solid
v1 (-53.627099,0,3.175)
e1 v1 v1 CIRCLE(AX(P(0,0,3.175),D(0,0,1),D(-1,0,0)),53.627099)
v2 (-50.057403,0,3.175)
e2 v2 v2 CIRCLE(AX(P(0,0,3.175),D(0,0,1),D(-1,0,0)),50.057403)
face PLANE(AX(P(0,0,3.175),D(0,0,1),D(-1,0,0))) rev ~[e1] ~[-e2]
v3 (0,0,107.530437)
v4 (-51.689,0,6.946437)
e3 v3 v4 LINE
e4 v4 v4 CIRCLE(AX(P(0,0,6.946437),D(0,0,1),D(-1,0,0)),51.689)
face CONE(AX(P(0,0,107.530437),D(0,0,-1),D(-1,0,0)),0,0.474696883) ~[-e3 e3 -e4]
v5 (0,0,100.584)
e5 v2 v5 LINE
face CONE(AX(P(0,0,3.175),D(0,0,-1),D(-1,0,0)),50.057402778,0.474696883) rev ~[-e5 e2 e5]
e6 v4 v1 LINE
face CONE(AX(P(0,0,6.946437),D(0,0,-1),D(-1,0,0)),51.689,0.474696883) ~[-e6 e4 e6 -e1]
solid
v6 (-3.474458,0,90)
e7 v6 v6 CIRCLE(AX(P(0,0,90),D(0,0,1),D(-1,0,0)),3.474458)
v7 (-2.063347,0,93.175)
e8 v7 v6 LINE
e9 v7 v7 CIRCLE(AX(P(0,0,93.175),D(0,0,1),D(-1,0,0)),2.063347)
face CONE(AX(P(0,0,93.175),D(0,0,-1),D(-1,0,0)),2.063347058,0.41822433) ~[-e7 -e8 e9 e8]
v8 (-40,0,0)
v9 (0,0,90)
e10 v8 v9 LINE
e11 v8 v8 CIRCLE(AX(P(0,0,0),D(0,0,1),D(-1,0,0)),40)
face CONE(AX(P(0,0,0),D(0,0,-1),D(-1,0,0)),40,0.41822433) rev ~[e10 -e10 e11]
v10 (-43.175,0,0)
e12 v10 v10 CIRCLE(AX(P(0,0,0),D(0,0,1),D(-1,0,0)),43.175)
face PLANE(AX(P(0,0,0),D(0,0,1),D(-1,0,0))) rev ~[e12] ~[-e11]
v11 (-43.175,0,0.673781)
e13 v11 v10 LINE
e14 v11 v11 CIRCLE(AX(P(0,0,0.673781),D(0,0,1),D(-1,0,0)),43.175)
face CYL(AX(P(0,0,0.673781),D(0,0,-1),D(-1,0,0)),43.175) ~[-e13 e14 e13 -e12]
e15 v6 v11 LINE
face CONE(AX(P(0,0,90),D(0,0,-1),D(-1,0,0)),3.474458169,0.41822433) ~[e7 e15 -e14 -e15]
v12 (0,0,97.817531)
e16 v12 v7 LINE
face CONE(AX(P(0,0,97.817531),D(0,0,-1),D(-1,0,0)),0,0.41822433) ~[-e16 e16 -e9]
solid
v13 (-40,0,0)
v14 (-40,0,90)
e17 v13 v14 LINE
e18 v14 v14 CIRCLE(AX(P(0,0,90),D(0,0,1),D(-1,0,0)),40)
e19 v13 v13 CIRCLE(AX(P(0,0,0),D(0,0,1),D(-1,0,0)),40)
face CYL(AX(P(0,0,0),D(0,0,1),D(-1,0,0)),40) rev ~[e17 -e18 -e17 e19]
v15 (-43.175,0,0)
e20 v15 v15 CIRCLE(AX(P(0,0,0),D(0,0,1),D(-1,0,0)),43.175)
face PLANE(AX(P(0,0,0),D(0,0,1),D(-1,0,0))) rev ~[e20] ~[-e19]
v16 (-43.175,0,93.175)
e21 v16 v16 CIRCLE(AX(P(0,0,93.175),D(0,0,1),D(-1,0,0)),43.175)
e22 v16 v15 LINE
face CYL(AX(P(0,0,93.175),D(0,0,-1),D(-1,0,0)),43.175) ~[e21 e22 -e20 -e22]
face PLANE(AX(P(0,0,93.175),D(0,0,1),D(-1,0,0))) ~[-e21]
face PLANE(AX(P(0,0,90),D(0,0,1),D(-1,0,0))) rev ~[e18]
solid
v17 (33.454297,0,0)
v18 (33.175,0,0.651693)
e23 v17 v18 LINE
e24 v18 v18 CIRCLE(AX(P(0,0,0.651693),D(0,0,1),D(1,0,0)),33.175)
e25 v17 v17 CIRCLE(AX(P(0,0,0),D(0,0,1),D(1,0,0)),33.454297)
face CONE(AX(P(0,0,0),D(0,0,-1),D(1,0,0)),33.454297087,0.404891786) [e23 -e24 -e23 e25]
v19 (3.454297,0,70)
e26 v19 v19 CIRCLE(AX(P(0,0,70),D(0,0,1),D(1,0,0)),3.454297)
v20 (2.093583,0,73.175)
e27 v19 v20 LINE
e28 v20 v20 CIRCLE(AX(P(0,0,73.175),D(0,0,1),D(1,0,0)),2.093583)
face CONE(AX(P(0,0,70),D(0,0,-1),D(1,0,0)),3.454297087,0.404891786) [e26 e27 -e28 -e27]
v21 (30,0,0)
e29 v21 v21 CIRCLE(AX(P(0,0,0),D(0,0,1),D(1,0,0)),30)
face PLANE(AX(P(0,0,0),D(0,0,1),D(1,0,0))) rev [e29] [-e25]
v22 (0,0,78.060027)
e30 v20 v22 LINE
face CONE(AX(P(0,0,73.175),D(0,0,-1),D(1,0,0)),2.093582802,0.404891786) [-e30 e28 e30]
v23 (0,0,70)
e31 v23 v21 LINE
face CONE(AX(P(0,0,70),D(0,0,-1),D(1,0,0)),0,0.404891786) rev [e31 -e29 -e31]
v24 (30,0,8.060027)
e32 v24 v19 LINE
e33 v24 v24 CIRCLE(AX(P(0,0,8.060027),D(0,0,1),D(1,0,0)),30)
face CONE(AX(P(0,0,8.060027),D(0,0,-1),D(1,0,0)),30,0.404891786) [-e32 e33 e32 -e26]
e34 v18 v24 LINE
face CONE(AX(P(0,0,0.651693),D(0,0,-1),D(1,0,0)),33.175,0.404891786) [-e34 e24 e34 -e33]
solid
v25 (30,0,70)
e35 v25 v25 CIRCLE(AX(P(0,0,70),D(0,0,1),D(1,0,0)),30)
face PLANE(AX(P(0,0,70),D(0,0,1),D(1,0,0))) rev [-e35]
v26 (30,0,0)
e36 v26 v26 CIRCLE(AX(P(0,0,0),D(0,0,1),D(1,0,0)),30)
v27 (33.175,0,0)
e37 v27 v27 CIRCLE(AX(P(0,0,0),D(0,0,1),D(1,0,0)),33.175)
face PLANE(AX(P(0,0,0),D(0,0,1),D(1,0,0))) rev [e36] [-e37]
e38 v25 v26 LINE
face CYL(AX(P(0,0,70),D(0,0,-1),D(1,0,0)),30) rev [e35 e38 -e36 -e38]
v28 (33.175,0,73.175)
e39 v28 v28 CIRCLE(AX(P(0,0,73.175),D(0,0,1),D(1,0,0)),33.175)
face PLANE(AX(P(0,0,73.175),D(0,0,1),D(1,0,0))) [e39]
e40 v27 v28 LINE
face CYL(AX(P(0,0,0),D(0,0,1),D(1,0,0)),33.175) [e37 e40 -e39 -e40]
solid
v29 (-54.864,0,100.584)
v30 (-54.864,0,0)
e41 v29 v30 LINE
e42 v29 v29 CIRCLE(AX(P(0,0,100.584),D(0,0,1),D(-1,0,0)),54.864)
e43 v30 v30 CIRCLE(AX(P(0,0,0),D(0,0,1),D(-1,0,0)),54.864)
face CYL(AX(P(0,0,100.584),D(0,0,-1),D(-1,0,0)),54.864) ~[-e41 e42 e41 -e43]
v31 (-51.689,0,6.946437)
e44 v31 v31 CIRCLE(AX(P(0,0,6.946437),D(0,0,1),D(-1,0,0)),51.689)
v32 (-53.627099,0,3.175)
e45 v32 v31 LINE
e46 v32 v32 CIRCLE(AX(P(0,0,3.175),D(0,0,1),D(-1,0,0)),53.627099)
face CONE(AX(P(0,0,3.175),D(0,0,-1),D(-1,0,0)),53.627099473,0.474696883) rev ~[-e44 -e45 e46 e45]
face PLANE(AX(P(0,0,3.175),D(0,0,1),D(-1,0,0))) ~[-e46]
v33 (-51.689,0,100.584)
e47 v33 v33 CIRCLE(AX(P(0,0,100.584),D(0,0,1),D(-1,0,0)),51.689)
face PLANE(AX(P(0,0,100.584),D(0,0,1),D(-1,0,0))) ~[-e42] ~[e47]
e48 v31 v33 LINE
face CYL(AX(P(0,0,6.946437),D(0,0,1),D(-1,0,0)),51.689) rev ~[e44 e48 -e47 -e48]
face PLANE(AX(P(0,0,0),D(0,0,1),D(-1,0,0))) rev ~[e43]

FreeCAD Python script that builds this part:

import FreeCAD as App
import Part
import Sketcher

V = App.Vector

doc = App.newDocument("Part")
body = doc.addObject("PartDesign::Body", "Body")

sketch1 = body.newObject("Sketcher::SketchObject", "Sketch")
sketch1.AttachmentSupport = (doc.getObject("XZ_Plane"), [""])
sketch1.MapMode = "FlatFace"
sketch1.addGeometry(Part.LineSegment(V(0, 0, 0), V(0, 3.2, 0)), False)
sketch1.addGeometry(Part.LineSegment(V(0, 3.2, 0), V(-53.6, 3.2, 0)), False)
sketch1.addGeometry(Part.LineSegment(V(-53.6, 3.2, 0), V(-51.7, 6.9, 0)), False)
sketch1.addGeometry(Part.LineSegment(V(-51.7, 6.9, 0), V(-51.7, 100.6, 0)), False)
sketch1.addGeometry(Part.LineSegment(V(-51.7, 100.6, 0), V(-54.9, 100.6, 0)), False)
sketch1.addGeometry(Part.LineSegment(V(-54.9, 100.6, 0), V(-54.9, 0, 0)), False)
sketch1.addGeometry(Part.LineSegment(V(-54.9, 0, 0), V(0, 0, 0)), False)
sketch1.addConstraint(Sketcher.Constraint("Coincident", 0, 2, 1, 1))
sketch1.addConstraint(Sketcher.Constraint("Coincident", 1, 2, 2, 1))
sketch1.addConstraint(Sketcher.Constraint("Coincident", 2, 2, 3, 1))
sketch1.addConstraint(Sketcher.Constraint("Coincident", 3, 2, 4, 1))
sketch1.addConstraint(Sketcher.Constraint("Coincident", 4, 2, 5, 1))
sketch1.addConstraint(Sketcher.Constraint("Coincident", 5, 2, 6, 1))
sketch1.addConstraint(Sketcher.Constraint("Coincident", 6, 2, 0, 1))
sketch1.addConstraint(Sketcher.Constraint("Vertical", 0))
sketch1.addConstraint(Sketcher.Constraint("Horizontal", 1))
sketch1.addConstraint(Sketcher.Constraint("Vertical", 3))
sketch1.addConstraint(Sketcher.Constraint("Horizontal", 4))
sketch1.addConstraint(Sketcher.Constraint("Vertical", 5))
sketch1.addConstraint(Sketcher.Constraint("Horizontal", 6))
sketch1.addConstraint(Sketcher.Constraint("Coincident", 6, 2, -1, 1))
sketch1.addConstraint(Sketcher.Constraint("Equal", 4, 0))
sketch1.addConstraint(Sketcher.Constraint("DistanceX", 4, 2, 4, 1, 3.175))
sketch1.addConstraint(Sketcher.Constraint("DistanceX", 6, 1, 6, 2, 54.864))
sketch1.addConstraint(Sketcher.Constraint("DistanceY", 5, 2, 5, 1, 100.584))
sketch1.addConstraint(Sketcher.Constraint("DistanceX", 1, 2, 1, 1, 53.627099))
sketch1.addConstraint(Sketcher.Constraint("Distance", 2, 4.240279))
revolution = body.newObject("PartDesign::Revolution", "Revolution")
revolution.Profile = sketch1
revolution.ReferenceAxis = (sketch1, ["V_Axis"])
revolution.Angle = 360
body2 = doc.addObject("PartDesign::Body", "Body001")

sketch2 = body2.newObject("Sketcher::SketchObject", "Sketch001")
sketch2.AttachmentSupport = (doc.getObject("XZ_Plane001"), [""])
sketch2.MapMode = "FlatFace"
sketch2.addGeometry(Part.LineSegment(V(-50.1, 3.2, 0), V(0, 100.6, 0)), False)
sketch2.addGeometry(Part.LineSegment(V(0, 100.6, 0), V(0, 107.5, 0)), False)
sketch2.addGeometry(Part.LineSegment(V(0, 107.5, 0), V(-51.7, 6.9, 0)), False)
sketch2.addGeometry(Part.LineSegment(V(-51.7, 6.9, 0), V(-53.6, 3.2, 0)), False)
sketch2.addGeometry(Part.LineSegment(V(-53.6, 3.2, 0), V(-50.1, 3.2, 0)), False)
sketch2.addConstraint(Sketcher.Constraint("Coincident", 0, 2, 1, 1))
sketch2.addConstraint(Sketcher.Constraint("Coincident", 1, 2, 2, 1))
sketch2.addConstraint(Sketcher.Constraint("Coincident", 2, 2, 3, 1))
sketch2.addConstraint(Sketcher.Constraint("Coincident", 3, 2, 4, 1))
sketch2.addConstraint(Sketcher.Constraint("Coincident", 4, 2, 0, 1))
sketch2.addConstraint(Sketcher.Constraint("Vertical", 1))
sketch2.addConstraint(Sketcher.Constraint("Horizontal", 4))
sketch2.addConstraint(Sketcher.Constraint("PointOnObject", 0, 2, -2))
sketch2.addConstraint(Sketcher.Constraint("Parallel", 0, 2))
sketch2.addConstraint(Sketcher.Constraint("Parallel", 2, 3))
sketch2.addConstraint(Sketcher.Constraint("DistanceY", -1, 1, 0, 2, 100.584))
sketch2.addConstraint(Sketcher.Constraint("DistanceX", 2, 2, -1, 1, 51.689))
sketch2.addConstraint(Sketcher.Constraint("DistanceY", -1, 1, 3, 2, 3.175))
sketch2.addConstraint(Sketcher.Constraint("DistanceY", 2, 2, 1, 2, 100.584))
sketch2.addConstraint(Sketcher.Constraint("DistanceX", 3, 2, -1, 1, 53.627099))
revolution2 = body2.newObject("PartDesign::Revolution", "Revolution001")
revolution2.Profile = sketch2
revolution2.ReferenceAxis = (sketch2, ["V_Axis"])
revolution2.Angle = 360
body3 = doc.addObject("PartDesign::Body", "Body002")

sketch3 = body3.newObject("Sketcher::SketchObject", "Sketch002")
sketch3.AttachmentSupport = (doc.getObject("XZ_Plane002"), [""])
sketch3.MapMode = "FlatFace"
sketch3.addGeometry(Part.LineSegment(V(-40, 90, 0), V(0, 90, 0)), False)
sketch3.addGeometry(Part.LineSegment(V(0, 90, 0), V(0, 93.2, 0)), False)
sketch3.addGeometry(Part.LineSegment(V(0, 93.2, 0), V(-43.2, 93.2, 0)), False)
sketch3.addGeometry(Part.LineSegment(V(-43.2, 93.2, 0), V(-43.2, 0, 0)), False)
sketch3.addGeometry(Part.LineSegment(V(-43.2, 0, 0), V(-40, 0, 0)), False)
sketch3.addGeometry(Part.LineSegment(V(-40, 0, 0), V(-40, 90, 0)), False)
sketch3.addConstraint(Sketcher.Constraint("Coincident", 0, 2, 1, 1))
sketch3.addConstraint(Sketcher.Constraint("Coincident", 1, 2, 2, 1))
sketch3.addConstraint(Sketcher.Constraint("Coincident", 2, 2, 3, 1))
sketch3.addConstraint(Sketcher.Constraint("Coincident", 3, 2, 4, 1))
sketch3.addConstraint(Sketcher.Constraint("Coincident", 4, 2, 5, 1))
sketch3.addConstraint(Sketcher.Constraint("Coincident", 5, 2, 0, 1))
sketch3.addConstraint(Sketcher.Constraint("Horizontal", 0))
sketch3.addConstraint(Sketcher.Constraint("Vertical", 1))
sketch3.addConstraint(Sketcher.Constraint("Horizontal", 2))
sketch3.addConstraint(Sketcher.Constraint("Vertical", 3))
sketch3.addConstraint(Sketcher.Constraint("Horizontal", 4))
sketch3.addConstraint(Sketcher.Constraint("Vertical", 5))
sketch3.addConstraint(Sketcher.Constraint("PointOnObject", 0, 2, -2))
sketch3.addConstraint(Sketcher.Constraint("PointOnObject", 3, 2, -1))
sketch3.addConstraint(Sketcher.Constraint("Equal", 4, 1))
sketch3.addConstraint(Sketcher.Constraint("DistanceX", 0, 1, 0, 2, 40.0))
sketch3.addConstraint(Sketcher.Constraint("DistanceY", 5, 1, 5, 2, 90.0))
sketch3.addConstraint(Sketcher.Constraint("DistanceX", 2, 2, 2, 1, 43.175))
revolution3 = body3.newObject("PartDesign::Revolution", "Revolution002")
revolution3.Profile = sketch3
revolution3.ReferenceAxis = (sketch3, ["V_Axis"])
revolution3.Angle = 360
body4 = doc.addObject("PartDesign::Body", "Body003")

sketch4 = body4.newObject("Sketcher::SketchObject", "Sketch003")
sketch4.AttachmentSupport = (doc.getObject("XZ_Plane003"), [""])
sketch4.MapMode = "FlatFace"
sketch4.addGeometry(Part.LineSegment(V(-43.2, 0, 0), V(-40, 0, 0)), False)
sketch4.addGeometry(Part.LineSegment(V(-40, 0, 0), V(0, 90, 0)), False)
sketch4.addGeometry(Part.LineSegment(V(0, 90, 0), V(0, 97.8, 0)), False)
sketch4.addGeometry(Part.LineSegment(V(0, 97.8, 0), V(-2.1, 93.2, 0)), False)
sketch4.addGeometry(Part.LineSegment(V(-2.1, 93.2, 0), V(-3.5, 90, 0)), False)
sketch4.addGeometry(Part.LineSegment(V(-3.5, 90, 0), V(-43.2, 0.7, 0)), False)
sketch4.addGeometry(Part.LineSegment(V(-43.2, 0.7, 0), V(-43.2, 0, 0)), False)
sketch4.addConstraint(Sketcher.Constraint("Coincident", 0, 2, 1, 1))
sketch4.addConstraint(Sketcher.Constraint("Coincident", 1, 2, 2, 1))
sketch4.addConstraint(Sketcher.Constraint("Coincident", 2, 2, 3, 1))
sketch4.addConstraint(Sketcher.Constraint("Coincident", 3, 2, 4, 1))
sketch4.addConstraint(Sketcher.Constraint("Coincident", 4, 2, 5, 1))
sketch4.addConstraint(Sketcher.Constraint("Coincident", 5, 2, 6, 1))
sketch4.addConstraint(Sketcher.Constraint("Coincident", 6, 2, 0, 1))
sketch4.addConstraint(Sketcher.Constraint("Horizontal", 0))
sketch4.addConstraint(Sketcher.Constraint("Vertical", 2))
sketch4.addConstraint(Sketcher.Constraint("Vertical", 6))
sketch4.addConstraint(Sketcher.Constraint("PointOnObject", 0, 2, -1))
sketch4.addConstraint(Sketcher.Constraint("PointOnObject", 1, 2, -2))
sketch4.addConstraint(Sketcher.Constraint("Parallel", 1, 3))
sketch4.addConstraint(Sketcher.Constraint("Parallel", 3, 4))
sketch4.addConstraint(Sketcher.Constraint("Parallel", 4, 5))
sketch4.addConstraint(Sketcher.Constraint("Horizontal", 1, 2, 4, 2))
sketch4.addConstraint(Sketcher.Constraint("DistanceX", 0, 2, -1, 1, 40.0))
sketch4.addConstraint(Sketcher.Constraint("DistanceY", -1, 1, 1, 2, 90.0))
sketch4.addConstraint(Sketcher.Constraint("DistanceX", 0, 1, 0, 2, 3.175))
sketch4.addConstraint(Sketcher.Constraint("DistanceY", -1, 1, 3, 2, 93.175))
sketch4.addConstraint(Sketcher.Constraint("DistanceY", 2, 1, 2, 2, 7.817531))
revolution4 = body4.newObject("PartDesign::Revolution", "Revolution003")
revolution4.Profile = sketch4
revolution4.ReferenceAxis = (sketch4, ["V_Axis"])
revolution4.Angle = 360
body5 = doc.addObject("PartDesign::Body", "Body004")

sketch5 = body5.newObject("Sketcher::SketchObject", "Sketch004")
sketch5.AttachmentSupport = (doc.getObject("XZ_Plane004"), [""])
sketch5.MapMode = "FlatFace"
sketch5.addGeometry(Part.LineSegment(V(30, 8.1, 0), V(3.5, 70, 0)), False)
sketch5.addGeometry(Part.LineSegment(V(3.5, 70, 0), V(2.1, 73.2, 0)), False)
sketch5.addGeometry(Part.LineSegment(V(2.1, 73.2, 0), V(0, 78.1, 0)), False)
sketch5.addGeometry(Part.LineSegment(V(0, 78.1, 0), V(0, 70, 0)), False)
sketch5.addGeometry(Part.LineSegment(V(0, 70, 0), V(30, 0, 0)), False)
sketch5.addGeometry(Part.LineSegment(V(30, 0, 0), V(33.5, 0, 0)), False)
sketch5.addGeometry(Part.LineSegment(V(33.5, 0, 0), V(33.2, 0.7, 0)), False)
sketch5.addGeometry(Part.LineSegment(V(33.2, 0.7, 0), V(30, 8.1, 0)), False)
sketch5.addConstraint(Sketcher.Constraint("Coincident", 0, 2, 1, 1))
sketch5.addConstraint(Sketcher.Constraint("Coincident", 1, 2, 2, 1))
sketch5.addConstraint(Sketcher.Constraint("Coincident", 2, 2, 3, 1))
sketch5.addConstraint(Sketcher.Constraint("Coincident", 3, 2, 4, 1))
sketch5.addConstraint(Sketcher.Constraint("Coincident", 4, 2, 5, 1))
sketch5.addConstraint(Sketcher.Constraint("Coincident", 5, 2, 6, 1))
sketch5.addConstraint(Sketcher.Constraint("Coincident", 6, 2, 7, 1))
sketch5.addConstraint(Sketcher.Constraint("Coincident", 7, 2, 0, 1))
sketch5.addConstraint(Sketcher.Constraint("Vertical", 3))
sketch5.addConstraint(Sketcher.Constraint("Horizontal", 5))
sketch5.addConstraint(Sketcher.Constraint("PointOnObject", 2, 2, -2))
sketch5.addConstraint(Sketcher.Constraint("PointOnObject", 4, 2, -1))
sketch5.addConstraint(Sketcher.Constraint("Parallel", 0, 1))
sketch5.addConstraint(Sketcher.Constraint("Parallel", 1, 2))
sketch5.addConstraint(Sketcher.Constraint("Parallel", 2, 4))
sketch5.addConstraint(Sketcher.Constraint("Parallel", 4, 6))
sketch5.addConstraint(Sketcher.Constraint("Parallel", 6, 7))
sketch5.addConstraint(Sketcher.Constraint("Horizontal", 0, 2, 3, 2))
sketch5.addConstraint(Sketcher.Constraint("Vertical", 4, 2, 7, 2))
sketch5.addConstraint(Sketcher.Constraint("DistanceY", -1, 1, 0, 2, 70.0))
sketch5.addConstraint(Sketcher.Constraint("DistanceX", -1, 1, 4, 2, 30.0))
sketch5.addConstraint(Sketcher.Constraint("DistanceY", -1, 1, 1, 2, 73.175))
sketch5.addConstraint(Sketcher.Constraint("DistanceX", -1, 1, 6, 2, 33.175))
sketch5.addConstraint(Sketcher.Constraint("Distance", 2, 5.314751))
revolution5 = body5.newObject("PartDesign::Revolution", "Revolution004")
revolution5.Profile = sketch5
revolution5.ReferenceAxis = (sketch5, ["V_Axis"])
revolution5.Angle = 360
body6 = doc.addObject("PartDesign::Body", "Body005")

sketch6 = body6.newObject("Sketcher::SketchObject", "Sketch005")
sketch6.AttachmentSupport = (doc.getObject("XZ_Plane005"), [""])
sketch6.MapMode = "FlatFace"
sketch6.addGeometry(Part.LineSegment(V(30, 70, 0), V(30, 0, 0)), False)
sketch6.addGeometry(Part.LineSegment(V(30, 0, 0), V(33.2, 0, 0)), False)
sketch6.addGeometry(Part.LineSegment(V(33.2, 0, 0), V(33.2, 73.2, 0)), False)
sketch6.addGeometry(Part.LineSegment(V(33.2, 73.2, 0), V(0, 73.2, 0)), False)
sketch6.addGeometry(Part.LineSegment(V(0, 73.2, 0), V(0, 70, 0)), False)
sketch6.addGeometry(Part.LineSegment(V(0, 70, 0), V(30, 70, 0)), False)
sketch6.addConstraint(Sketcher.Constraint("Coincident", 0, 2, 1, 1))
sketch6.addConstraint(Sketcher.Constraint("Coincident", 1, 2, 2, 1))
sketch6.addConstraint(Sketcher.Constraint("Coincident", 2, 2, 3, 1))
sketch6.addConstraint(Sketcher.Constraint("Coincident", 3, 2, 4, 1))
sketch6.addConstraint(Sketcher.Constraint("Coincident", 4, 2, 5, 1))
sketch6.addConstraint(Sketcher.Constraint("Coincident", 5, 2, 0, 1))
sketch6.addConstraint(Sketcher.Constraint("Vertical", 0))
sketch6.addConstraint(Sketcher.Constraint("Horizontal", 1))
sketch6.addConstraint(Sketcher.Constraint("Vertical", 2))
sketch6.addConstraint(Sketcher.Constraint("Horizontal", 3))
sketch6.addConstraint(Sketcher.Constraint("Vertical", 4))
sketch6.addConstraint(Sketcher.Constraint("Horizontal", 5))
sketch6.addConstraint(Sketcher.Constraint("PointOnObject", 0, 2, -1))
sketch6.addConstraint(Sketcher.Constraint("PointOnObject", 3, 2, -2))
sketch6.addConstraint(Sketcher.Constraint("Equal", 1, 4))
sketch6.addConstraint(Sketcher.Constraint("DistanceX", 5, 1, 5, 2, 30.0))
sketch6.addConstraint(Sketcher.Constraint("DistanceY", 0, 2, 0, 1, 70.0))
sketch6.addConstraint(Sketcher.Constraint("DistanceX", 1, 1, 1, 2, 3.175))
revolution6 = body6.newObject("PartDesign::Revolution", "Revolution005")
revolution6.Profile = sketch6
revolution6.ReferenceAxis = (sketch6, ["V_Axis"])
revolution6.Angle = 360

doc.recompute()
